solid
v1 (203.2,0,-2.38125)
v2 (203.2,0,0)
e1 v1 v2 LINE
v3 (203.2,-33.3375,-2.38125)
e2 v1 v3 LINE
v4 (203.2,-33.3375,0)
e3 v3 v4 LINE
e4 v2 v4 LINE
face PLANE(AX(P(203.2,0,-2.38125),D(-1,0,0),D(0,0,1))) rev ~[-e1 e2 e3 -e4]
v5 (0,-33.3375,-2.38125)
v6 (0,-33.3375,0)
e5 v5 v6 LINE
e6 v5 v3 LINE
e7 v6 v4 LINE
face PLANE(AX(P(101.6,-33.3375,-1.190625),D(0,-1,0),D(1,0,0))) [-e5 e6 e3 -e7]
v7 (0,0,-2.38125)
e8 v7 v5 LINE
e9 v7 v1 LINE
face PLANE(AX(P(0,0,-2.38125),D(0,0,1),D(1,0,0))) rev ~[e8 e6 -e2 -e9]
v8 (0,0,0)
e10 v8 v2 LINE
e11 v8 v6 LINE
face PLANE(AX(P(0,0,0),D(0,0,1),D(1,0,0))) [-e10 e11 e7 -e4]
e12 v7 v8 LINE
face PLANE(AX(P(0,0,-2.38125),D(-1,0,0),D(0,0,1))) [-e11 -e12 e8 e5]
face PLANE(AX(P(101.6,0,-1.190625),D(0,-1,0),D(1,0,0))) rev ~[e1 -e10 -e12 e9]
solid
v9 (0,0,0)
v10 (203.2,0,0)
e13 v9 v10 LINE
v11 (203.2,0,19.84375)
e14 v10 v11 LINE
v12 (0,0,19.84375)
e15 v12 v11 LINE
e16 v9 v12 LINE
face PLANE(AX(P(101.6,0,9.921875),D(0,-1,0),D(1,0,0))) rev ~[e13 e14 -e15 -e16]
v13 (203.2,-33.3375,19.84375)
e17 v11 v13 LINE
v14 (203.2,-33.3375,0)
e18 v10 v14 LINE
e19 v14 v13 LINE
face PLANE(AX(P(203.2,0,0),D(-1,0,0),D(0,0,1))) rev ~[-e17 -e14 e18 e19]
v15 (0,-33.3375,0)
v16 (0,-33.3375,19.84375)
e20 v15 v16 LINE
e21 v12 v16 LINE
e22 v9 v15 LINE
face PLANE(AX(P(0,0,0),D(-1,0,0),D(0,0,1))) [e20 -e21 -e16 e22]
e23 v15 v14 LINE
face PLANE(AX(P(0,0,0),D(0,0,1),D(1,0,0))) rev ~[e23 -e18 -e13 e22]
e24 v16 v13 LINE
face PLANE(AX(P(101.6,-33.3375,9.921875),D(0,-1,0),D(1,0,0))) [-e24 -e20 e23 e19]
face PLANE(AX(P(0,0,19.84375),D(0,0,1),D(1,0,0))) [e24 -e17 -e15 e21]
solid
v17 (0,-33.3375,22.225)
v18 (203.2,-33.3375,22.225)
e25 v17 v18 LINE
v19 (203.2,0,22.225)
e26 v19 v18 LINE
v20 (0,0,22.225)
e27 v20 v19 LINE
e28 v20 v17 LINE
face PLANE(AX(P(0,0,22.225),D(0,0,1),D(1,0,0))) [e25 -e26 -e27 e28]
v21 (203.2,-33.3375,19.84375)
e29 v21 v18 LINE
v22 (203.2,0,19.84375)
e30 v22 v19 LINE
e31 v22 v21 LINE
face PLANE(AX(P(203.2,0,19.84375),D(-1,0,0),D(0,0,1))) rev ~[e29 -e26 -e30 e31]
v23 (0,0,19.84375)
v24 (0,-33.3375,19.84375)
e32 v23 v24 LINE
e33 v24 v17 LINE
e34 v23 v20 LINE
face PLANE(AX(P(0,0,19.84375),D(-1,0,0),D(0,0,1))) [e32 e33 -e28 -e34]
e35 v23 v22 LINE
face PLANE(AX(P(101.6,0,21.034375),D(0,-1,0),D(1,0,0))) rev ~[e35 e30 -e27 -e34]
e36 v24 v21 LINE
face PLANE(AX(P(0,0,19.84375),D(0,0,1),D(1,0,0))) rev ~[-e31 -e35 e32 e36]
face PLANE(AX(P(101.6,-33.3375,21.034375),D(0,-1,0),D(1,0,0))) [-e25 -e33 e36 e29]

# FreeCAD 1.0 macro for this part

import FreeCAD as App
import Part
import Sketcher
from FreeCAD import Vector
Q = App.Units.Quantity


def add_polygon(sketch, points):
    """Adds a closed chain of lines whose ends are joined by coincident constraints."""
    first, n = sketch.GeometryCount, len(points)
    for a, b in zip(points, points[1:] + points[:1]):
        sketch.addGeometry(Part.LineSegment(App.Vector(*a, 0), App.Vector(*b, 0)), False)
    for i in range(n):
        sketch.addConstraint(Sketcher.Constraint("Coincident", first + i, 2, first + (i + 1) % n, 1))

doc = App.newDocument("Part")
body = doc.addObject("PartDesign::Body", "Body")

sketch1 = body.newObject("Sketcher::SketchObject", "Sketch")
sketch1.AttachmentSupport = (doc.getObject("XZ_Plane"), [""])
sketch1.MapMode = "FlatFace"
add_polygon(sketch1, [(0, 19.84375), (0, 0), (203.2, 0), (203.2, 19.84375)])
sketch1.addConstraint(Sketcher.Constraint("Vertical", 0))
sketch1.addConstraint(Sketcher.Constraint("Horizontal", 1))
sketch1.addConstraint(Sketcher.Constraint("Vertical", 2))
sketch1.addConstraint(Sketcher.Constraint("Horizontal", 3))
sketch1.addConstraint(Sketcher.Constraint("Coincident", 0, 2, -1, 1))
sketch1.addConstraint(Sketcher.Constraint("DistanceX", 1, 1, 1, 2, Q("8 in")))
sketch1.addConstraint(Sketcher.Constraint("DistanceY", 0, 2, 0, 1, Q("0.78125 in")))
pad1 = body.newObject("PartDesign::Pad", "Pad")
pad1.Profile = sketch1
pad1.Length = Q("1.3125 in")
body2 = doc.addObject("PartDesign::Body", "Body001")
body2.AllowCompound = True

sketch2 = body2.newObject("Sketcher::SketchObject", "Sketch001")
sketch2.AttachmentSupport = (doc.getObject("XZ_Plane001"), [""])
sketch2.MapMode = "FlatFace"
add_polygon(sketch2, [(0, 22.225), (0, 19.84375), (203.2, 19.84375), (203.2, 22.225)])
add_polygon(sketch2, [(0, 0), (0, -2.38125), (203.2, -2.38125), (203.2, 0)])
sketch2.addConstraint(Sketcher.Constraint("Vertical", 0))
sketch2.addConstraint(Sketcher.Constraint("Horizontal", 1))
sketch2.addConstraint(Sketcher.Constraint("Vertical", 2))
sketch2.addConstraint(Sketcher.Constraint("Horizontal", 3))
sketch2.addConstraint(Sketcher.Constraint("Vertical", 4))
sketch2.addConstraint(Sketcher.Constraint("Horizontal", 5))
sketch2.addConstraint(Sketcher.Constraint("Vertical", 6))
sketch2.addConstraint(Sketcher.Constraint("Horizontal", 7))
sketch2.addConstraint(Sketcher.Constraint("Coincident", 7, 2, -1, 1))
sketch2.addConstraint(Sketcher.Constraint("PointOnObject", 0, 2, -2))
sketch2.addConstraint(Sketcher.Constraint("Vertical", 2, 2, 5, 2))
sketch2.addConstraint(Sketcher.Constraint("Equal", 2, 4))
sketch2.addConstraint(Sketcher.Constraint("DistanceX", 1, 1, 1, 2, Q("8 in")))
sketch2.addConstraint(Sketcher.Constraint("DistanceY", 0, 2, 0, 1, Q("0.09375 in")))
sketch2.addConstraint(Sketcher.Constraint("DistanceY", -1, 1, 0, 2, Q("0.78125 in")))
pad2 = body2.newObject("PartDesign::Pad", "Pad001")
pad2.Profile = sketch2
pad2.Length = Q("1.3125 in")

doc.recompute()
